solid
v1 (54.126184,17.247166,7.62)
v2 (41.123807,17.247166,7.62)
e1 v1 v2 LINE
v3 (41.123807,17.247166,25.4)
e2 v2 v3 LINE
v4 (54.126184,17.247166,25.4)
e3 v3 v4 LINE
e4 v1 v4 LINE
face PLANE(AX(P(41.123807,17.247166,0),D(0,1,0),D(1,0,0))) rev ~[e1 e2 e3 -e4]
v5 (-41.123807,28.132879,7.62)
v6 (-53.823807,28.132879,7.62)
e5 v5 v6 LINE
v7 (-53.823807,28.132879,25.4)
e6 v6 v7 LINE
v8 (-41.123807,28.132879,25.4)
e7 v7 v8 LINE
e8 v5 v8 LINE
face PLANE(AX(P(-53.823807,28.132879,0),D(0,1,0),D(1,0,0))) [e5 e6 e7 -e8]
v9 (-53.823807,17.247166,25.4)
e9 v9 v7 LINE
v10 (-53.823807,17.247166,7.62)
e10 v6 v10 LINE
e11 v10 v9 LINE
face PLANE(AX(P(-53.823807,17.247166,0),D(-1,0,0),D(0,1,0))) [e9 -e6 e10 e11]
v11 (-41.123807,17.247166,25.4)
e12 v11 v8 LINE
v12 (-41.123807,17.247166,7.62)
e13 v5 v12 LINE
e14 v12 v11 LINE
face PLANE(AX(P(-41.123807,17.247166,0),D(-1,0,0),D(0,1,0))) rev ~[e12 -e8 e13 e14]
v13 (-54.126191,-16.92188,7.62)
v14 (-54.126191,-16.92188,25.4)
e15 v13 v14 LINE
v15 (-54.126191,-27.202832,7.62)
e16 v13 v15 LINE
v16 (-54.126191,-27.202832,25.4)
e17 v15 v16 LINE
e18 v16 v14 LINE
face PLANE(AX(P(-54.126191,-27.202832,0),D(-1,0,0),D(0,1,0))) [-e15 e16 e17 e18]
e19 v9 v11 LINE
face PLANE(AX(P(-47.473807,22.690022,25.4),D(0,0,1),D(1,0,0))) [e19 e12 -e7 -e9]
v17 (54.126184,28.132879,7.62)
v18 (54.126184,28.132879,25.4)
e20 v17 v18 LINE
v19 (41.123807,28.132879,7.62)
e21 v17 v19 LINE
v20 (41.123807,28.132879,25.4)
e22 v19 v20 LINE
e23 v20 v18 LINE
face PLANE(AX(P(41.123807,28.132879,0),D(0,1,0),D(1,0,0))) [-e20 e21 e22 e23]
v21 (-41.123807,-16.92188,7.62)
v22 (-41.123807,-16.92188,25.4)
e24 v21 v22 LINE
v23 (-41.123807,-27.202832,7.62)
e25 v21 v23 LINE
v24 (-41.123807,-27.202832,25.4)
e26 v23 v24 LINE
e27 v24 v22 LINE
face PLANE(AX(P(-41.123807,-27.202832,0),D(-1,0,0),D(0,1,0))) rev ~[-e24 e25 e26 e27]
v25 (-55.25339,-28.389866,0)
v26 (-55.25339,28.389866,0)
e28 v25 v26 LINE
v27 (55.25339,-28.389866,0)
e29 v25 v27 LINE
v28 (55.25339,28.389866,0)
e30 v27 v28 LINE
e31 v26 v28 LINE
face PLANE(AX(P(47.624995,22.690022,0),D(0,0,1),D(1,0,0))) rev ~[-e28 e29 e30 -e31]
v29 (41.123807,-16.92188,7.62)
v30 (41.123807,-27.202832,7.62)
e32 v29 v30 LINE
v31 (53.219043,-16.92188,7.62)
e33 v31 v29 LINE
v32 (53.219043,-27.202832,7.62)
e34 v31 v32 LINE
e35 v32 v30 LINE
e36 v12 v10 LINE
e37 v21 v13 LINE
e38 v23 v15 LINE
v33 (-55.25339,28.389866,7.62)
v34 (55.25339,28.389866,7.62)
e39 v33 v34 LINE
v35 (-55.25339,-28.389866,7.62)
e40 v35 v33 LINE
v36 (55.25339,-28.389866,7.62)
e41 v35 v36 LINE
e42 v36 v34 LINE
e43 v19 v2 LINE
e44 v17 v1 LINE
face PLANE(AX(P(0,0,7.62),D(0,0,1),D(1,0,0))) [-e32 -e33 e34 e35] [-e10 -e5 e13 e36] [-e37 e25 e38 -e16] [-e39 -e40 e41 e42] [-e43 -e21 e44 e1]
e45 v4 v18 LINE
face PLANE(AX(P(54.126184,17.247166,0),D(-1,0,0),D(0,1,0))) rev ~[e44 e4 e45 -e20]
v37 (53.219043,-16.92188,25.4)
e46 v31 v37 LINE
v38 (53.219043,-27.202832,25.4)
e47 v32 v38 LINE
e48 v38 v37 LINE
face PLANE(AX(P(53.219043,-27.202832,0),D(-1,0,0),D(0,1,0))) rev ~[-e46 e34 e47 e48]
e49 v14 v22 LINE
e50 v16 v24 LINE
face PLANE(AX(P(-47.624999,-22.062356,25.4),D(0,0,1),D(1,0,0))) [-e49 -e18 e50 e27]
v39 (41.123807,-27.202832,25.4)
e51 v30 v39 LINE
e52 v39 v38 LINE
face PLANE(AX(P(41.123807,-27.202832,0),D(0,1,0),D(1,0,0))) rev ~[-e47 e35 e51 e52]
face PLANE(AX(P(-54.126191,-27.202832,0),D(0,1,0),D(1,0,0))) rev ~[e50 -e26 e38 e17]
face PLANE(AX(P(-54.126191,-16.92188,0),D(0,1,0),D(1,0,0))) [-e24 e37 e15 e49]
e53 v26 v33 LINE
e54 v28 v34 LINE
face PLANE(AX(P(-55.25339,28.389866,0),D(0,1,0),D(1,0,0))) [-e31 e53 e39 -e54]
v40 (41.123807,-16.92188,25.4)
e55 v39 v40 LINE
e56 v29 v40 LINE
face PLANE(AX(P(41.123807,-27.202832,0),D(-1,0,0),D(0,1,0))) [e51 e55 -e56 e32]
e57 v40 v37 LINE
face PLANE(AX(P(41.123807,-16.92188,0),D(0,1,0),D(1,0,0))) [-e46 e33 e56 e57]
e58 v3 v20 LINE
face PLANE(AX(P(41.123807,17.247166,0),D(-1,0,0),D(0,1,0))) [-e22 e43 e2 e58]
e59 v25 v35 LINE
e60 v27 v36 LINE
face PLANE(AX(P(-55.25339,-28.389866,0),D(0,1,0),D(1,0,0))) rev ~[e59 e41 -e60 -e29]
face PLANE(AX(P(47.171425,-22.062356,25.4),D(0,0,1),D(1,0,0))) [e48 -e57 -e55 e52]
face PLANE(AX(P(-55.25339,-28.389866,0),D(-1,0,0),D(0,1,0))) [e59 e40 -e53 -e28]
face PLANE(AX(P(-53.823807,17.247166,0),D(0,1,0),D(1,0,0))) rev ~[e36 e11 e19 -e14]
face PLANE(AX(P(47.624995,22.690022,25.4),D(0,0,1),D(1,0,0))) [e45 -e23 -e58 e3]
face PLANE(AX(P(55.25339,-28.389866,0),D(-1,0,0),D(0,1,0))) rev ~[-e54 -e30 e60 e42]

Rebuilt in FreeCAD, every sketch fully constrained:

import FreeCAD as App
import Part
import Sketcher
Q = App.Units.Quantity


def add_polygon(sketch, points):
    """Adds a closed chain of lines whose ends are joined by coincident constraints."""
    first, n = sketch.GeometryCount, len(points)
    for a, b in zip(points, points[1:] + points[:1]):
        sketch.addGeometry(Part.LineSegment(App.Vector(*a, 0), App.Vector(*b, 0)), False)
    for i in range(n):
        sketch.addConstraint(Sketcher.Constraint("Coincident", first + i, 2, first + (i + 1) % n, 1))

doc = App.newDocument("Part")
body = doc.addObject("PartDesign::Body", "Body")

sketch1 = body.newObject("Sketcher::SketchObject", "Sketch")
sketch1.AttachmentSupport = (doc.getObject("XY_Plane"), [""])
sketch1.MapMode = "FlatFace"
add_polygon(sketch1, [(-55, 28), (-55, -28), (55, -28), (55, 28)])
sketch1.addConstraint([
    Sketcher.Constraint("Vertical", 0),
    Sketcher.Constraint("Horizontal", 1),
    Sketcher.Constraint("Vertical", 2),
    Sketcher.Constraint("Horizontal", 3),
    Sketcher.Constraint("Symmetric", 0, 2, 2, 2, -1, 1),
    Sketcher.Constraint("DistanceX", 1, 1, 1, 2, 110.50678),
    Sketcher.Constraint("DistanceY", 0, 2, 0, 1, 56.779732),
])
pad1 = body.newObject("PartDesign::Pad", "Pad")
pad1.Profile = sketch1
pad1.Length = Q("0.3 in")

sketch2 = body.newObject("Sketcher::SketchObject", "Sketch001")
sketch2.AttachmentSupport = (doc.getObject("XY_Plane"), [""])
sketch2.MapMode = "FlatFace"
add_polygon(sketch2, [(41, 28), (41, 17), (54, 17), (54, 28)])
add_polygon(sketch2, [(41, -17), (41, -27), (53, -27), (53, -17)])
add_polygon(sketch2, [(-54, -17), (-54, -27), (-41, -27), (-41, -17)])
add_polygon(sketch2, [(-54, 28), (-54, 17), (-41, 17), (-41, 28)])
sketch2.addConstraint([
    Sketcher.Constraint("Vertical", 0),
    Sketcher.Constraint("Horizontal", 1),
    Sketcher.Constraint("Vertical", 2),
    Sketcher.Constraint("Horizontal", 3),
    Sketcher.Constraint("Vertical", 4),
    Sketcher.Constraint("Horizontal", 5),
    Sketcher.Constraint("Vertical", 6),
    Sketcher.Constraint("Horizontal", 7),
    Sketcher.Constraint("Vertical", 8),
    Sketcher.Constraint("Horizontal", 9),
    Sketcher.Constraint("Vertical", 10),
    Sketcher.Constraint("Horizontal", 11),
    Sketcher.Constraint("Vertical", 12),
    Sketcher.Constraint("Horizontal", 13),
    Sketcher.Constraint("Vertical", 14),
    Sketcher.Constraint("Horizontal", 15),
    Sketcher.Constraint("Symmetric", 4, 2, 9, 2, -2),
    Sketcher.Constraint("Symmetric", 0, 2, 13, 2, -2),
    Sketcher.Constraint("Horizontal", 7, 2, 10, 2),
    Sketcher.Constraint("Horizontal", 3, 2, 14, 2),
    Sketcher.Constraint("Vertical", 3, 2, 4, 2),
    Sketcher.Constraint("DistanceX", 13, 1, 13, 2, Q("0.5 in")),
    Sketcher.Constraint("DistanceY", 4, 2, 0, 2, Q("1.7499999 in")),
    Sketcher.Constraint("DistanceX", 8, 2, 4, 2, Q("3.7499999 in")),
    Sketcher.Constraint("DistanceY", 4, 2, 4, 1, 10.280952),
    Sketcher.Constraint("DistanceX", 1, 1, 1, 2, 13.002377),
    Sketcher.Constraint("DistanceX", 5, 1, 5, 2, 12.095236),
    Sketcher.Constraint("DistanceX", 9, 1, 9, 2, 13.002384),
    Sketcher.Constraint("DistanceY", 0, 2, 0, 1, 10.885713),
    Sketcher.Constraint("DistanceY", -1, 1, 2, 2, 28.132879),
])
pad2 = body.newObject("PartDesign::Pad", "Pad001")
pad2.Profile = sketch2
pad2.Length = Q("1 in")

doc.recompute()
